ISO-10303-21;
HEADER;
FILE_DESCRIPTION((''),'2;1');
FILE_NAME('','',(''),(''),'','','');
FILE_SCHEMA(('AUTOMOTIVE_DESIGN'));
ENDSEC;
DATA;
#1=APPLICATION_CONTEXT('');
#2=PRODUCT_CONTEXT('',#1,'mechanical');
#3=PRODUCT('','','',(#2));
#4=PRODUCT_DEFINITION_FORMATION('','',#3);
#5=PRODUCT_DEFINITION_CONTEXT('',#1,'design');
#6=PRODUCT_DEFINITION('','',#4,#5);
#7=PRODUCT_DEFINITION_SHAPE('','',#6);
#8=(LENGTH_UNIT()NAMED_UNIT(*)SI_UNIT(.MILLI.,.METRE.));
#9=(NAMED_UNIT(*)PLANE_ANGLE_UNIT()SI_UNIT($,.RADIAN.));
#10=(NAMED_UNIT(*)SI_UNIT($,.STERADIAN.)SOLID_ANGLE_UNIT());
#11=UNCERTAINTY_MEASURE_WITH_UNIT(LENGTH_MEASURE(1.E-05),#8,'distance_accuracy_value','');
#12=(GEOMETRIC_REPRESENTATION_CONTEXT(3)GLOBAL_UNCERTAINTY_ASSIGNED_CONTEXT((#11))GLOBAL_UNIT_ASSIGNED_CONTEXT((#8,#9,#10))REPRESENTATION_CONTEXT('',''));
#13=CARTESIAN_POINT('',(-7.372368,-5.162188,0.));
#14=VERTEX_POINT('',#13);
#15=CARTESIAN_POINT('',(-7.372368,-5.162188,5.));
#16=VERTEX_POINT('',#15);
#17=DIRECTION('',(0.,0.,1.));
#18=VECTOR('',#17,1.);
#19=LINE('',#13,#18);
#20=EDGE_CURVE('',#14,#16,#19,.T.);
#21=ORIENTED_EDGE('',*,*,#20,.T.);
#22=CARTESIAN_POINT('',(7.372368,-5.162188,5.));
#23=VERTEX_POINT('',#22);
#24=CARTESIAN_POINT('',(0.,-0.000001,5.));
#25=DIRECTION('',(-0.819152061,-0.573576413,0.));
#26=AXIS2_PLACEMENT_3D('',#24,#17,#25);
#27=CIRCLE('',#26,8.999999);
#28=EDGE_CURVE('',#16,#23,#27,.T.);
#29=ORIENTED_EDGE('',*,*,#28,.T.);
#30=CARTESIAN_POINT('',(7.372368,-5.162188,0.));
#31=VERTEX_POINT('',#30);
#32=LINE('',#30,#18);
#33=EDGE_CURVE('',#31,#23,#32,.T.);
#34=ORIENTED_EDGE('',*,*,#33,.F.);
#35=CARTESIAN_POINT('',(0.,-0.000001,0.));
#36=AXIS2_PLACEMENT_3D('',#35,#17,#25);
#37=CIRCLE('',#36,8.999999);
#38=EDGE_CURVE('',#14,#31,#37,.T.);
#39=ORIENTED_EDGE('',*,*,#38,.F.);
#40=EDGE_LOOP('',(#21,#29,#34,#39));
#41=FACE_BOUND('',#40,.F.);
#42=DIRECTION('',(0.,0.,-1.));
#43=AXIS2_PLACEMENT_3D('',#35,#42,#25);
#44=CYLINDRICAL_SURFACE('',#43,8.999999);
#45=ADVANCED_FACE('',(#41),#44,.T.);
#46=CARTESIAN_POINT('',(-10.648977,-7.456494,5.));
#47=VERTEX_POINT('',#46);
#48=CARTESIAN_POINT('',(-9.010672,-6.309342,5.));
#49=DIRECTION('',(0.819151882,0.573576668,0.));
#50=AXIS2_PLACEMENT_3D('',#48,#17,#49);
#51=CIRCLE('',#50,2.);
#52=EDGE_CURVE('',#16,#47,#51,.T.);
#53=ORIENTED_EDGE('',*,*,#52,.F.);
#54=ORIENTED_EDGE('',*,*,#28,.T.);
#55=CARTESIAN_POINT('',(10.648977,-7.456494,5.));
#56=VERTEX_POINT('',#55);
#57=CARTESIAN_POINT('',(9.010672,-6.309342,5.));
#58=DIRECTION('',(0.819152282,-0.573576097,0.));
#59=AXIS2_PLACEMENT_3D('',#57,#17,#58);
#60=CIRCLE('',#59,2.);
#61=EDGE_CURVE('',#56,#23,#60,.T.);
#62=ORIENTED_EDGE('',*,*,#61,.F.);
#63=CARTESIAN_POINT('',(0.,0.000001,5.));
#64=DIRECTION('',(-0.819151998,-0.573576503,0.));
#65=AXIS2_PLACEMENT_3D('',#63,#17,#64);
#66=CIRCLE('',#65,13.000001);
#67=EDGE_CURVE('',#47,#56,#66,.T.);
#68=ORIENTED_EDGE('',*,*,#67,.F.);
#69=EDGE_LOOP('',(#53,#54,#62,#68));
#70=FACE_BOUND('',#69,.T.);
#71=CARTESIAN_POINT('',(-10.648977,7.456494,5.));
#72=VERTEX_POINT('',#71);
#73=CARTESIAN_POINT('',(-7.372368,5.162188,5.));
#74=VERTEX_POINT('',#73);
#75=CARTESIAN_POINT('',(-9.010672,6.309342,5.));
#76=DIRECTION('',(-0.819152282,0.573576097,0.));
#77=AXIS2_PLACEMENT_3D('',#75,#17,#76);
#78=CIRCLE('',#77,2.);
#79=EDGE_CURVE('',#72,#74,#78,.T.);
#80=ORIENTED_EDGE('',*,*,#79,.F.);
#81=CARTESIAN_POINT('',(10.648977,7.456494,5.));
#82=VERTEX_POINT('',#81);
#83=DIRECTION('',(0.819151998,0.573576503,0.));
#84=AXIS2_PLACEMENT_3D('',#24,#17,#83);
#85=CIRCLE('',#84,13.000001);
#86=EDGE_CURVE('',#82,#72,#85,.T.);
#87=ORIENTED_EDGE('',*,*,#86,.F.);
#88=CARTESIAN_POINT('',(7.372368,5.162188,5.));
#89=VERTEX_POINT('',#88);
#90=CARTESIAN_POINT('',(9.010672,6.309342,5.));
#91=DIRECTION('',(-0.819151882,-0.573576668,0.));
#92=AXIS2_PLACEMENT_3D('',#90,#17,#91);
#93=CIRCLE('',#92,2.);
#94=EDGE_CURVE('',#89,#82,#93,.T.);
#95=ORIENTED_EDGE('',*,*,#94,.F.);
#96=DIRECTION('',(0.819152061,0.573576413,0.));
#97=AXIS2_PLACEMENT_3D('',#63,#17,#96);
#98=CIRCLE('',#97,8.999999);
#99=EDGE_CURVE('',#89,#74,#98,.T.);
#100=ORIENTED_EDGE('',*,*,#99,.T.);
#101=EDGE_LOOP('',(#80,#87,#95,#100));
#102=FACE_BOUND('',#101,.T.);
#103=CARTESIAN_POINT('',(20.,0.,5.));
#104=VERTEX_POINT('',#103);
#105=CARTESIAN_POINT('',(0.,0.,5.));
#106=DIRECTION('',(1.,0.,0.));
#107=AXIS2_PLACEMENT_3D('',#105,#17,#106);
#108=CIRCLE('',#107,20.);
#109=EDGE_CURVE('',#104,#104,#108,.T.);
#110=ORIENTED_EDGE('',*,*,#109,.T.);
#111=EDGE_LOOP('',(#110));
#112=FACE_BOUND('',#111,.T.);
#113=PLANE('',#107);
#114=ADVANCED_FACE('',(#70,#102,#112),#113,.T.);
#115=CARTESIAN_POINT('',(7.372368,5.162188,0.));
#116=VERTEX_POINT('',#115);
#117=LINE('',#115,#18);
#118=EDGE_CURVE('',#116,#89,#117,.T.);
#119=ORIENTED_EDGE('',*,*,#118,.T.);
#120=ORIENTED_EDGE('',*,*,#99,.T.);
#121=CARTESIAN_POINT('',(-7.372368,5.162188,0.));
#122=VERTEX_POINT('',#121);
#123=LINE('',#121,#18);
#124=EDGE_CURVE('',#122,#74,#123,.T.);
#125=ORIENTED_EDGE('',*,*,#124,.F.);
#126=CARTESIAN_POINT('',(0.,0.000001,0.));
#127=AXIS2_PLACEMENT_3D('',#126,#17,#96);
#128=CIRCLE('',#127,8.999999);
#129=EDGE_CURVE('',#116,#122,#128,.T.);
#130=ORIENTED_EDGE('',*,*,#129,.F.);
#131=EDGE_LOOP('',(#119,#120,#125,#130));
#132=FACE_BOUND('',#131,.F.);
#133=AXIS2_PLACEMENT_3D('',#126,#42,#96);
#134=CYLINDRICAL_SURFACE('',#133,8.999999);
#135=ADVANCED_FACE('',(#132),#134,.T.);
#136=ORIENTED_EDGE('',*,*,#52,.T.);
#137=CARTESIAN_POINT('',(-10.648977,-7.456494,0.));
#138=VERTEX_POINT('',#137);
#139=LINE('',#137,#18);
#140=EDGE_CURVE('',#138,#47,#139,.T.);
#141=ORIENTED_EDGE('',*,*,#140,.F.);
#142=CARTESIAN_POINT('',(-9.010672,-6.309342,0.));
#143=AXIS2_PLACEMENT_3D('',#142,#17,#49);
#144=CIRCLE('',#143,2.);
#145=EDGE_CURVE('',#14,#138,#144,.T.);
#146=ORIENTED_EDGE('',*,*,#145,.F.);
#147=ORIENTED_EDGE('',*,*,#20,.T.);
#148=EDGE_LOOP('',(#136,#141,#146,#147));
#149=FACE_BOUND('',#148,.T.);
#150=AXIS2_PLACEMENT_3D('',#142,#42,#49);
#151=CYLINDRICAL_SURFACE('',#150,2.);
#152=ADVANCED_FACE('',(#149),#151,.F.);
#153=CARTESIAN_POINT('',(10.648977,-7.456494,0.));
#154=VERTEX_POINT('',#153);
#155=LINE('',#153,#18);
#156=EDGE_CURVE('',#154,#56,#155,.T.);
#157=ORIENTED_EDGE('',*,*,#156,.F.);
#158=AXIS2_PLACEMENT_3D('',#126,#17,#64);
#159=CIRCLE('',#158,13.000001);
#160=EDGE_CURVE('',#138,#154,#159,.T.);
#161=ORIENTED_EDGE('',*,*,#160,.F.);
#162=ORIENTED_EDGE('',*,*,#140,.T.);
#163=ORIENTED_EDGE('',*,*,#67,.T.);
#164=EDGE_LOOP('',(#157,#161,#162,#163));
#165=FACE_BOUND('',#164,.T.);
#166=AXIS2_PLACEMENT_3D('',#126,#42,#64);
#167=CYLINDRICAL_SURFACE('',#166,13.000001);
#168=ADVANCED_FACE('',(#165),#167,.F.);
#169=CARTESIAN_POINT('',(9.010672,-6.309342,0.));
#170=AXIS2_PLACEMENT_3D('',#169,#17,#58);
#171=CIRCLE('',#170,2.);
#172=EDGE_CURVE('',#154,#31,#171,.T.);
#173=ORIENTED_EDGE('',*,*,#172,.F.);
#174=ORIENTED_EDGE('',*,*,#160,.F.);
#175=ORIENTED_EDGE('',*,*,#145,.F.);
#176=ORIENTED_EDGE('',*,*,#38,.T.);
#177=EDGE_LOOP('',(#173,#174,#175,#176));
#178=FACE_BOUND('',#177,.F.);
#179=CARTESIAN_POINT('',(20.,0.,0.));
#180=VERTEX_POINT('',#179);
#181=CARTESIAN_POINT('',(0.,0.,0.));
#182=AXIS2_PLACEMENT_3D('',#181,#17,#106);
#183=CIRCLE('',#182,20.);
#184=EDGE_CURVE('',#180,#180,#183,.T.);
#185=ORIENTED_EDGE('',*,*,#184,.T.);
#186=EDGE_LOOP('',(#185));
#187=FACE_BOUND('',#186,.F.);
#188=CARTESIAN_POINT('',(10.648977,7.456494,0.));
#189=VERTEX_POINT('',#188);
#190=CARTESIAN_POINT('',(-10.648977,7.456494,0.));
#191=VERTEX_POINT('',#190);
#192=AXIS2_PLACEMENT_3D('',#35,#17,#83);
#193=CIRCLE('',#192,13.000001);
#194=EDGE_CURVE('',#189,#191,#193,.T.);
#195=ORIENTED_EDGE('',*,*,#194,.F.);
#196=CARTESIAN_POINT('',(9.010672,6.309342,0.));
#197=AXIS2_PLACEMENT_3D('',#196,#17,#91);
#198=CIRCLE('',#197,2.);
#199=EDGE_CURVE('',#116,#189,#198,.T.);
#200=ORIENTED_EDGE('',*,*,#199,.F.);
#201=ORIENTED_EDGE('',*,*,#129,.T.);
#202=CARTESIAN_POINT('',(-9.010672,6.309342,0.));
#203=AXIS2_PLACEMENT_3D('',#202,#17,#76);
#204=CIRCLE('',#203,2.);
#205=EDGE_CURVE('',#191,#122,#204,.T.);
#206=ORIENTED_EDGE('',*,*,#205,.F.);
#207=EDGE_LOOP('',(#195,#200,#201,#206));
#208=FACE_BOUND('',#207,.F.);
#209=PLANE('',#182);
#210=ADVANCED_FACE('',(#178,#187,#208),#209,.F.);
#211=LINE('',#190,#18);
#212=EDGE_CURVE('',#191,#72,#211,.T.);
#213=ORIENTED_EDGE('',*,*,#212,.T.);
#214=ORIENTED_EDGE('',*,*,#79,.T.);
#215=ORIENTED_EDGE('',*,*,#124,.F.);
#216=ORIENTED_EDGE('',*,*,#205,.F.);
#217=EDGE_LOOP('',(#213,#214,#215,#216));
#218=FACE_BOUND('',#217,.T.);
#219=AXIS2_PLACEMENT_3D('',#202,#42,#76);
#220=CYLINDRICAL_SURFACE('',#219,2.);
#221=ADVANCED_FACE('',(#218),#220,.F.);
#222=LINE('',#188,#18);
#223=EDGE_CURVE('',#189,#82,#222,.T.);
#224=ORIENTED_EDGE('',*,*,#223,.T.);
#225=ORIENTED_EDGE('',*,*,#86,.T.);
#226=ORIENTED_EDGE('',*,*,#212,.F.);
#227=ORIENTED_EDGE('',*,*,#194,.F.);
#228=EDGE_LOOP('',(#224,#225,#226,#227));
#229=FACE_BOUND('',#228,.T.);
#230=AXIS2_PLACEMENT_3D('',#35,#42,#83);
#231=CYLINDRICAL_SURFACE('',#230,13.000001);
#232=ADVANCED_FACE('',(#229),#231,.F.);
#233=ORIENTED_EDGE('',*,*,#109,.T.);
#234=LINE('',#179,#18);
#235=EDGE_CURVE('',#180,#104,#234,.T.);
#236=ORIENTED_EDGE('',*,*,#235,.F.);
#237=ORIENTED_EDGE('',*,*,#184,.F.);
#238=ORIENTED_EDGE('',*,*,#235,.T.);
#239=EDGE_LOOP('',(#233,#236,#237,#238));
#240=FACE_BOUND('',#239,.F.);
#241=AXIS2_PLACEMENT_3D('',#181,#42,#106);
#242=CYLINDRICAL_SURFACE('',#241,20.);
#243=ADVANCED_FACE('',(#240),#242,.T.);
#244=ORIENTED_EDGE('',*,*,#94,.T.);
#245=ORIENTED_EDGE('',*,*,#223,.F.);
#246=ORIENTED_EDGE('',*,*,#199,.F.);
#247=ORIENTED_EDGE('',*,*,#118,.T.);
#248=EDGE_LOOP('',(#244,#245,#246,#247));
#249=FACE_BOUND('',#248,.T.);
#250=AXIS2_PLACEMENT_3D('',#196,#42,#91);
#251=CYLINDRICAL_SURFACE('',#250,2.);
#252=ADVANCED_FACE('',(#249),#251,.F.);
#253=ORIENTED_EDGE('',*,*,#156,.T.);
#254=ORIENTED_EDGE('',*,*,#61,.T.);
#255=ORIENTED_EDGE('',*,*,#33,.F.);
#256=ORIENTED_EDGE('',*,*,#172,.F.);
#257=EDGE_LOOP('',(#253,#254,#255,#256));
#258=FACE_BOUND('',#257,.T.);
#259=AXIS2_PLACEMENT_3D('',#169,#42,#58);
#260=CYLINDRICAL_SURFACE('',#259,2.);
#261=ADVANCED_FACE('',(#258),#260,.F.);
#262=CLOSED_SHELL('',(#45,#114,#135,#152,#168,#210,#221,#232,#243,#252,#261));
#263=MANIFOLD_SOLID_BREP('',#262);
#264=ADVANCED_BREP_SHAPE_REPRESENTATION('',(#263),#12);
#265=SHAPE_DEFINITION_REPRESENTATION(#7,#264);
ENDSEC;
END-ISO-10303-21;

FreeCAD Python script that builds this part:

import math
import FreeCAD as App
import Part
import Sketcher

doc = App.newDocument("Part")
body = doc.addObject("PartDesign::Body", "Body")

sketch1 = body.newObject("Sketcher::SketchObject", "Sketch")
sketch1.AttachmentSupport = (doc.getObject("XY_Plane"), [""])
sketch1.MapMode = "FlatFace"
sketch1.addGeometry([
    Part.Circle(App.Vector(0, 0, 0), App.Vector(0, 0, 1), 20),
    Part.ArcOfCircle(Part.Circle(App.Vector(-9, -6.3, 0), App.Vector(0, 0, 1), 2), math.radians(35), math.radians(215)),
    Part.ArcOfCircle(Part.Circle(App.Vector(0, 0, 0), App.Vector(0, 0, 1), 9), math.radians(-145), math.radians(-35)),
    Part.ArcOfCircle(Part.Circle(App.Vector(9, -6.3, 0), App.Vector(0, 0, 1), 2), math.radians(-35), math.radians(145)),
    Part.ArcOfCircle(Part.Circle(App.Vector(0, 0, 0), App.Vector(0, 0, 1), 13), math.radians(-145), math.radians(-35)),
    Part.ArcOfCircle(Part.Circle(App.Vector(9, 6.3, 0), App.Vector(0, 0, 1), 2), math.radians(-145), math.radians(35)),
    Part.ArcOfCircle(Part.Circle(App.Vector(0, 0, 0), App.Vector(0, 0, 1), 9), math.radians(35), math.radians(145)),
    Part.ArcOfCircle(Part.Circle(App.Vector(-9, 6.3, 0), App.Vector(0, 0, 1), 2), math.radians(145), math.radians(325)),
    Part.ArcOfCircle(Part.Circle(App.Vector(0, 0, 0), App.Vector(0, 0, 1), 13), math.radians(35), math.radians(145)),
], False)
sketch1.addConstraint([
    Sketcher.Constraint("Tangent", 1, 1, 2, 1),
    Sketcher.Constraint("Tangent", 2, 2, 3, 2),
    Sketcher.Constraint("Tangent", 3, 1, 4, 2),
    Sketcher.Constraint("Tangent", 4, 1, 1, 2),
    Sketcher.Constraint("Tangent", 5, 1, 6, 1),
    Sketcher.Constraint("Tangent", 6, 2, 7, 2),
    Sketcher.Constraint("Tangent", 7, 1, 8, 2),
    Sketcher.Constraint("Tangent", 8, 1, 5, 2),
    Sketcher.Constraint("Coincident", 0, 3, -1, 1),
    Sketcher.Constraint("Coincident", 2, 3, -1, 1),
    Sketcher.Constraint("Coincident", 4, 3, -1, 1),
    Sketcher.Constraint("Coincident", 6, 3, -1, 1),
    Sketcher.Constraint("Coincident", 8, 3, -1, 1),
    Sketcher.Constraint("Equal", 3, 5),
    Sketcher.Constraint("Equal", 2, 6),
    Sketcher.Constraint("Horizontal", 1, 3, 3, 3),
    Sketcher.Constraint("Horizontal", 5, 3, 7, 3),
    Sketcher.Constraint("Vertical", 3, 3, 5, 3),
    Sketcher.Constraint("Diameter", 0, 40.0),
    Sketcher.Constraint("Radius", 1, 2.0),
    Sketcher.Constraint("Radius", 2, 8.999999),
    Sketcher.Constraint("DistanceY", 1, 3, -1, 1, 6.309342),
])
pad1 = body.newObject("PartDesign::Pad", "Pad")
pad1.Profile = sketch1
pad1.Length = 5

doc.recompute()
